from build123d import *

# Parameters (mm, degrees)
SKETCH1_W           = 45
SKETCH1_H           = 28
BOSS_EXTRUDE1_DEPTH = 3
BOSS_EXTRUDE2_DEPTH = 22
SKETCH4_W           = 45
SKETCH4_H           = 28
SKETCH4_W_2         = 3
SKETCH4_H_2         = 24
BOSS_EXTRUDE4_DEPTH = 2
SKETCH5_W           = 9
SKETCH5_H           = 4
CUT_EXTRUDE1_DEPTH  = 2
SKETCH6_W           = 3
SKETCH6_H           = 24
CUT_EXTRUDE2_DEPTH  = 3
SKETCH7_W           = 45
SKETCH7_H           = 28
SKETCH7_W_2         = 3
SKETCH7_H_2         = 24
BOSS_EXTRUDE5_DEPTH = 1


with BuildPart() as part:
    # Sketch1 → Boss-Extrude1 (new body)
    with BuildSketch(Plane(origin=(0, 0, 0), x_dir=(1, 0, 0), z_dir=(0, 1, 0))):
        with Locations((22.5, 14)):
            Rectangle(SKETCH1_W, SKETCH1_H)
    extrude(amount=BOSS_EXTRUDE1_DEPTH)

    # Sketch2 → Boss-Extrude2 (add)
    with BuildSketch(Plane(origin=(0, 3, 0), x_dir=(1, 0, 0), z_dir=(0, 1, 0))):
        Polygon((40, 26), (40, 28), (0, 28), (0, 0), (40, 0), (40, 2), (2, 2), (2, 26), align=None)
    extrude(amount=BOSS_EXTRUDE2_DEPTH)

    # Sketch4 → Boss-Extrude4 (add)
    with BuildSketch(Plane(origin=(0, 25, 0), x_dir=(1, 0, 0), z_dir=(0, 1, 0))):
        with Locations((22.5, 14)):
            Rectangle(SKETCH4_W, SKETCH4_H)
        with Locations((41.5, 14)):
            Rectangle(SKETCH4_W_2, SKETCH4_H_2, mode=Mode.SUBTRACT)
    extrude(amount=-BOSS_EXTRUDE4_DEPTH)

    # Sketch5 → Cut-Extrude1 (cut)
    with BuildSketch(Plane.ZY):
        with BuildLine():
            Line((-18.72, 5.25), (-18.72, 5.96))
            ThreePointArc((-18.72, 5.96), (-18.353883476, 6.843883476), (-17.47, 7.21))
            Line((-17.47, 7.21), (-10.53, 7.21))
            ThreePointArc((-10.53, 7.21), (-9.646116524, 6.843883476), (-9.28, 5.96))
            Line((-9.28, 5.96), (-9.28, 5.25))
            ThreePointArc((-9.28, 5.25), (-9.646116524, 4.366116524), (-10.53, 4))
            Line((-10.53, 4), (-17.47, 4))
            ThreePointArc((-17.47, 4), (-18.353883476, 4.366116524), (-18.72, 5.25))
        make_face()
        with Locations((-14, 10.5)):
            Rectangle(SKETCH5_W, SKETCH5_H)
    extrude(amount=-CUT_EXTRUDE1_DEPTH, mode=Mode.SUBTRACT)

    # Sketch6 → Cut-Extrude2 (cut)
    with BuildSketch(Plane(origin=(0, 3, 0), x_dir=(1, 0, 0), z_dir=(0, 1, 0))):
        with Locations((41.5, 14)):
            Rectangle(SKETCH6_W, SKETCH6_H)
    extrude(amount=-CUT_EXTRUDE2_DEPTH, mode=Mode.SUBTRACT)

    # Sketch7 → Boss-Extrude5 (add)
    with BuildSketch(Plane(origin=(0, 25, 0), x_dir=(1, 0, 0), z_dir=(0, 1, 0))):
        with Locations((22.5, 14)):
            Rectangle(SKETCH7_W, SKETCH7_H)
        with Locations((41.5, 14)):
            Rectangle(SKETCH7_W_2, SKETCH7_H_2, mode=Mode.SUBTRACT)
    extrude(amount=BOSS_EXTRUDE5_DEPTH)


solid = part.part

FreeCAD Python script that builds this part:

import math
import FreeCAD as App
import Part
import Sketcher
Q = App.Units.Quantity

doc = App.newDocument("Part")
body = doc.addObject("PartDesign::Body", "Body")

# Sketch on XZ plane
sketch1 = body.newObject("Sketcher::SketchObject", "Sketch")
sketch1.AttachmentSupport = (doc.getObject("XZ_Plane"), [""])
sketch1.MapMode = "FlatFace"
sketch1.addGeometry(Part.LineSegment(App.Vector(0, -28, 0), App.Vector(0, 0, 0)), False)
sketch1.addGeometry(Part.LineSegment(App.Vector(0, 0, 0), App.Vector(45, 0, 0)), False)
sketch1.addGeometry(Part.LineSegment(App.Vector(45, 0, 0), App.Vector(45, -28, 0)), False)
sketch1.addGeometry(Part.LineSegment(App.Vector(45, -28, 0), App.Vector(0, -28, 0)), False)
sketch1.addConstraint(Sketcher.Constraint("Coincident", 0, 2, 1, 1))
sketch1.addConstraint(Sketcher.Constraint("Coincident", 1, 2, 2, 1))
sketch1.addConstraint(Sketcher.Constraint("Coincident", 2, 2, 3, 1))
sketch1.addConstraint(Sketcher.Constraint("Coincident", 3, 2, 0, 1))
sketch1.addConstraint(Sketcher.Constraint("Vertical", 0))
sketch1.addConstraint(Sketcher.Constraint("Horizontal", 1))
sketch1.addConstraint(Sketcher.Constraint("Vertical", 2))
sketch1.addConstraint(Sketcher.Constraint("Horizontal", 3))
sketch1.addConstraint(Sketcher.Constraint("Coincident", 0, 2, -1, 1))
sketch1.addConstraint(Sketcher.Constraint("DistanceX", 1, 1, 1, 2, Q("45 mm")))
sketch1.addConstraint(Sketcher.Constraint("DistanceY", 0, 1, 0, 2, Q("28 mm")))
pad1 = body.newObject("PartDesign::Pad", "Pad")
pad1.Profile = sketch1
pad1.Length = 3
pad1.Reversed = True

# Sketch on XZ plane
sketch2 = body.newObject("Sketcher::SketchObject", "Sketch001")
sketch2.AttachmentSupport = (doc.getObject("XZ_Plane"), [""])
sketch2.MapMode = "FlatFace"
sketch2.AttachmentOffset = App.Placement(App.Vector(0, 0, -3), App.Rotation())
sketch2.addGeometry(Part.LineSegment(App.Vector(40, -26, 0), App.Vector(40, -28, 0)), False)
sketch2.addGeometry(Part.LineSegment(App.Vector(40, -28, 0), App.Vector(0, -28, 0)), False)
sketch2.addGeometry(Part.LineSegment(App.Vector(0, -28, 0), App.Vector(0, 0, 0)), False)
sketch2.addGeometry(Part.LineSegment(App.Vector(0, 0, 0), App.Vector(40, 0, 0)), False)
sketch2.addGeometry(Part.LineSegment(App.Vector(40, 0, 0), App.Vector(40, -2, 0)), False)
sketch2.addGeometry(Part.LineSegment(App.Vector(40, -2, 0), App.Vector(2, -2, 0)), False)
sketch2.addGeometry(Part.LineSegment(App.Vector(2, -2, 0), App.Vector(2, -26, 0)), False)
sketch2.addGeometry(Part.LineSegment(App.Vector(2, -26, 0), App.Vector(40, -26, 0)), False)
sketch2.addConstraint(Sketcher.Constraint("Coincident", 0, 2, 1, 1))
sketch2.addConstraint(Sketcher.Constraint("Coincident", 1, 2, 2, 1))
sketch2.addConstraint(Sketcher.Constraint("Coincident", 2, 2, 3, 1))
sketch2.addConstraint(Sketcher.Constraint("Coincident", 3, 2, 4, 1))
sketch2.addConstraint(Sketcher.Constraint("Coincident", 4, 2, 5, 1))
sketch2.addConstraint(Sketcher.Constraint("Coincident", 5, 2, 6, 1))
sketch2.addConstraint(Sketcher.Constraint("Coincident", 6, 2, 7, 1))
sketch2.addConstraint(Sketcher.Constraint("Coincident", 7, 2, 0, 1))
sketch2.addConstraint(Sketcher.Constraint("Vertical", 0))
sketch2.addConstraint(Sketcher.Constraint("Horizontal", 1))
sketch2.addConstraint(Sketcher.Constraint("Vertical", 2))
sketch2.addConstraint(Sketcher.Constraint("Horizontal", 3))
sketch2.addConstraint(Sketcher.Constraint("Vertical", 4))
sketch2.addConstraint(Sketcher.Constraint("Horizontal", 5))
sketch2.addConstraint(Sketcher.Constraint("Vertical", 6))
sketch2.addConstraint(Sketcher.Constraint("Horizontal", 7))
sketch2.addConstraint(Sketcher.Constraint("Coincident", 2, 2, -1, 1))
sketch2.addConstraint(Sketcher.Constraint("Vertical", 0, 2, 3, 2))
sketch2.addConstraint(Sketcher.Constraint("Equal", 0, 4))
sketch2.addConstraint(Sketcher.Constraint("DistanceX", 1, 2, 1, 1, Q("40 mm")))
sketch2.addConstraint(Sketcher.Constraint("DistanceX", 5, 2, 5, 1, Q("38 mm")))
sketch2.addConstraint(Sketcher.Constraint("DistanceY", 0, 2, 0, 1, Q("2 mm")))
sketch2.addConstraint(Sketcher.Constraint("DistanceY", 2, 1, 2, 2, Q("28 mm")))
pad2 = body.newObject("PartDesign::Pad", "Pad001")
pad2.Profile = sketch2
pad2.Length = 22
pad2.Reversed = True

# Sketch on XZ plane
sketch3 = body.newObject("Sketcher::SketchObject", "Sketch002")
sketch3.AttachmentSupport = (doc.getObject("XZ_Plane"), [""])
sketch3.MapMode = "FlatFace"
sketch3.AttachmentOffset = App.Placement(App.Vector(0, 0, -25), App.Rotation())
sketch3.addGeometry(Part.LineSegment(App.Vector(0, -28, 0), App.Vector(0, 0, 0)), False)
sketch3.addGeometry(Part.LineSegment(App.Vector(0, 0, 0), App.Vector(45, 0, 0)), False)
sketch3.addGeometry(Part.LineSegment(App.Vector(45, 0, 0), App.Vector(45, -28, 0)), False)
sketch3.addGeometry(Part.LineSegment(App.Vector(45, -28, 0), App.Vector(0, -28, 0)), False)
sketch3.addGeometry(Part.LineSegment(App.Vector(43, -2, 0), App.Vector(40, -2, 0)), False)
sketch3.addGeometry(Part.LineSegment(App.Vector(40, -2, 0), App.Vector(40, -26, 0)), False)
sketch3.addGeometry(Part.LineSegment(App.Vector(40, -26, 0), App.Vector(43, -26, 0)), False)
sketch3.addGeometry(Part.LineSegment(App.Vector(43, -26, 0), App.Vector(43, -2, 0)), False)
sketch3.addConstraint(Sketcher.Constraint("Coincident", 0, 2, 1, 1))
sketch3.addConstraint(Sketcher.Constraint("Coincident", 1, 2, 2, 1))
sketch3.addConstraint(Sketcher.Constraint("Coincident", 2, 2, 3, 1))
sketch3.addConstraint(Sketcher.Constraint("Coincident", 3, 2, 0, 1))
sketch3.addConstraint(Sketcher.Constraint("Coincident", 4, 2, 5, 1))
sketch3.addConstraint(Sketcher.Constraint("Coincident", 5, 2, 6, 1))
sketch3.addConstraint(Sketcher.Constraint("Coincident", 6, 2, 7, 1))
sketch3.addConstraint(Sketcher.Constraint("Coincident", 7, 2, 4, 1))
sketch3.addConstraint(Sketcher.Constraint("Vertical", 0))
sketch3.addConstraint(Sketcher.Constraint("Horizontal", 1))
sketch3.addConstraint(Sketcher.Constraint("Vertical", 2))
sketch3.addConstraint(Sketcher.Constraint("Horizontal", 3))
sketch3.addConstraint(Sketcher.Constraint("Horizontal", 4))
sketch3.addConstraint(Sketcher.Constraint("Vertical", 5))
sketch3.addConstraint(Sketcher.Constraint("Horizontal", 6))
sketch3.addConstraint(Sketcher.Constraint("Vertical", 7))
sketch3.addConstraint(Sketcher.Constraint("Coincident", 0, 2, -1, 1))
sketch3.addConstraint(Sketcher.Constraint("DistanceX", 1, 1, 1, 2, Q("45 mm")))
sketch3.addConstraint(Sketcher.Constraint("DistanceX", 4, 2, 4, 1, Q("3 mm")))
sketch3.addConstraint(Sketcher.Constraint("DistanceY", 0, 1, 0, 2, Q("28 mm")))
sketch3.addConstraint(Sketcher.Constraint("DistanceY", 5, 2, 5, 1, Q("24 mm")))
sketch3.addConstraint(Sketcher.Constraint("DistanceX", -1, 1, 4, 2, Q("40 mm")))
sketch3.addConstraint(Sketcher.Constraint("DistanceY", 4, 2, -1, 1, Q("2 mm")))
pad3 = body.newObject("PartDesign::Pad", "Pad002")
pad3.Profile = sketch3
pad3.Length = 2

# Sketch on YZ plane
sketch4 = body.newObject("Sketcher::SketchObject", "Sketch003")
sketch4.AttachmentSupport = (doc.getObject("YZ_Plane"), [""])
sketch4.MapMode = "FlatFace"
sketch4.addGeometry(Part.LineSegment(App.Vector(6, -18.7, 0), App.Vector(5.2, -18.7, 0)), False)
sketch4.addGeometry(Part.ArcOfCircle(Part.Circle(App.Vector(5.3, -17.5, 0), App.Vector(0, 0, 1), 1.3), math.radians(-180), math.radians(-90)), False)
sketch4.addGeometry(Part.LineSegment(App.Vector(4, -17.5, 0), App.Vector(4, -10.5, 0)), False)
sketch4.addGeometry(Part.ArcOfCircle(Part.Circle(App.Vector(5.3, -10.5, 0), App.Vector(0, 0, 1), 1.3), math.radians(90), math.radians(180)), False)
sketch4.addGeometry(Part.LineSegment(App.Vector(5.2, -9.3, 0), App.Vector(6, -9.3, 0)), False)
sketch4.addGeometry(Part.ArcOfCircle(Part.Circle(App.Vector(6, -10.5, 0), App.Vector(0, 0, 1), 1.3), math.radians(0), math.radians(90)), False)
sketch4.addGeometry(Part.LineSegment(App.Vector(7.2, -10.5, 0), App.Vector(7.2, -17.5, 0)), False)
sketch4.addGeometry(Part.ArcOfCircle(Part.Circle(App.Vector(6, -17.5, 0), App.Vector(0, 0, 1), 1.3), math.radians(-90), math.radians(0)), False)
sketch4.addGeometry(Part.LineSegment(App.Vector(12.5, -18.5, 0), App.Vector(8.5, -18.5, 0)), False)
sketch4.addGeometry(Part.LineSegment(App.Vector(8.5, -18.5, 0), App.Vector(8.5, -9.5, 0)), False)
sketch4.addGeometry(Part.LineSegment(App.Vector(8.5, -9.5, 0), App.Vector(12.5, -9.5, 0)), False)
sketch4.addGeometry(Part.LineSegment(App.Vector(12.5, -9.5, 0), App.Vector(12.5, -18.5, 0)), False)
sketch4.addConstraint(Sketcher.Constraint("Tangent", 0, 2, 1, 2))
sketch4.addConstraint(Sketcher.Constraint("Tangent", 1, 1, 2, 1))
sketch4.addConstraint(Sketcher.Constraint("Tangent", 2, 2, 3, 2))
sketch4.addConstraint(Sketcher.Constraint("Tangent", 3, 1, 4, 1))
sketch4.addConstraint(Sketcher.Constraint("Tangent", 4, 2, 5, 2))
sketch4.addConstraint(Sketcher.Constraint("Tangent", 5, 1, 6, 1))
sketch4.addConstraint(Sketcher.Constraint("Tangent", 6, 2, 7, 2))
sketch4.addConstraint(Sketcher.Constraint("Tangent", 7, 1, 0, 1))
sketch4.addConstraint(Sketcher.Constraint("Coincident", 8, 2, 9, 1))
sketch4.addConstraint(Sketcher.Constraint("Coincident", 9, 2, 10, 1))
sketch4.addConstraint(Sketcher.Constraint("Coincident", 10, 2, 11, 1))
sketch4.addConstraint(Sketcher.Constraint("Coincident", 11, 2, 8, 1))
sketch4.addConstraint(Sketcher.Constraint("Horizontal", 0))
sketch4.addConstraint(Sketcher.Constraint("Vertical", 2))
sketch4.addConstraint(Sketcher.Constraint("Horizontal", 4))
sketch4.addConstraint(Sketcher.Constraint("Vertical", 6))
sketch4.addConstraint(Sketcher.Constraint("Horizontal", 8))
sketch4.addConstraint(Sketcher.Constraint("Vertical", 9))
sketch4.addConstraint(Sketcher.Constraint("Horizontal", 10))
sketch4.addConstraint(Sketcher.Constraint("Vertical", 11))
sketch4.addConstraint(Sketcher.Constraint("Equal", 1, 3))
sketch4.addConstraint(Sketcher.Constraint("Equal", 3, 5))
sketch4.addConstraint(Sketcher.Constraint("Equal", 5, 7))
sketch4.addConstraint(Sketcher.Constraint("DistanceX", 8, 2, 8, 1, Q("4 mm")))
sketch4.addConstraint(Sketcher.Constraint("DistanceY", 9, 1, 9, 2, Q("9 mm")))
sketch4.addConstraint(Sketcher.Constraint("Radius", 1, Q("1.25 mm")))
sketch4.addConstraint(Sketcher.Constraint("DistanceX", -1, 1, 1, 1, Q("4 mm")))
sketch4.addConstraint(Sketcher.Constraint("DistanceX", 0, 2, 0, 1, Q("0.71 mm")))
sketch4.addConstraint(Sketcher.Constraint("DistanceY", 2, 1, 2, 2, Q("6.94 mm")))
sketch4.addConstraint(Sketcher.Constraint("DistanceX", -1, 1, 8, 2, Q("8.5 mm")))
sketch4.addConstraint(Sketcher.Constraint("DistanceY", 8, 2, -1, 1, Q("18.5 mm")))
sketch4.addConstraint(Sketcher.Constraint("DistanceY", 1, 3, -1, 1, Q("17.47 mm")))
pocket1 = body.newObject("PartDesign::Pocket", "Pocket")
pocket1.Profile = sketch4
pocket1.Length = 2
pocket1.Reversed = True

# Sketch on XZ plane
sketch5 = body.newObject("Sketcher::SketchObject", "Sketch004")
sketch5.AttachmentSupport = (doc.getObject("XZ_Plane"), [""])
sketch5.MapMode = "FlatFace"
sketch5.AttachmentOffset = App.Placement(App.Vector(0, 0, -3), App.Rotation())
sketch5.addGeometry(Part.LineSegment(App.Vector(40, -26, 0), App.Vector(40, -2, 0)), False)
sketch5.addGeometry(Part.LineSegment(App.Vector(40, -2, 0), App.Vector(43, -2, 0)), False)
sketch5.addGeometry(Part.LineSegment(App.Vector(43, -2, 0), App.Vector(43, -26, 0)), False)
sketch5.addGeometry(Part.LineSegment(App.Vector(43, -26, 0), App.Vector(40, -26, 0)), False)
sketch5.addConstraint(Sketcher.Constraint("Coincident", 0, 2, 1, 1))
sketch5.addConstraint(Sketcher.Constraint("Coincident", 1, 2, 2, 1))
sketch5.addConstraint(Sketcher.Constraint("Coincident", 2, 2, 3, 1))
sketch5.addConstraint(Sketcher.Constraint("Coincident", 3, 2, 0, 1))
sketch5.addConstraint(Sketcher.Constraint("Vertical", 0))
sketch5.addConstraint(Sketcher.Constraint("Horizontal", 1))
sketch5.addConstraint(Sketcher.Constraint("Vertical", 2))
sketch5.addConstraint(Sketcher.Constraint("Horizontal", 3))
sketch5.addConstraint(Sketcher.Constraint("DistanceX", 1, 1, 1, 2, Q("3 mm")))
sketch5.addConstraint(Sketcher.Constraint("DistanceY", 0, 1, 0, 2, Q("24 mm")))
sketch5.addConstraint(Sketcher.Constraint("DistanceX", -1, 1, 0, 2, Q("40 mm")))
sketch5.addConstraint(Sketcher.Constraint("DistanceY", 0, 2, -1, 1, Q("2 mm")))
pocket2 = body.newObject("PartDesign::Pocket", "Pocket001")
pocket2.Profile = sketch5
pocket2.Length = 3
pocket2.Reversed = True

# Sketch on XZ plane
sketch6 = body.newObject("Sketcher::SketchObject", "Sketch005")
sketch6.AttachmentSupport = (doc.getObject("XZ_Plane"), [""])
sketch6.MapMode = "FlatFace"
sketch6.AttachmentOffset = App.Placement(App.Vector(0, 0, -25), App.Rotation())
sketch6.addGeometry(Part.LineSegment(App.Vector(0, -28, 0), App.Vector(0, 0, 0)), False)
sketch6.addGeometry(Part.LineSegment(App.Vector(0, 0, 0), App.Vector(45, 0, 0)), False)
sketch6.addGeometry(Part.LineSegment(App.Vector(45, 0, 0), App.Vector(45, -28, 0)), False)
sketch6.addGeometry(Part.LineSegment(App.Vector(45, -28, 0), App.Vector(0, -28, 0)), False)
sketch6.addGeometry(Part.LineSegment(App.Vector(43, -2, 0), App.Vector(40, -2, 0)), False)
sketch6.addGeometry(Part.LineSegment(App.Vector(40, -2, 0), App.Vector(40, -26, 0)), False)
sketch6.addGeometry(Part.LineSegment(App.Vector(40, -26, 0), App.Vector(43, -26, 0)), False)
sketch6.addGeometry(Part.LineSegment(App.Vector(43, -26, 0), App.Vector(43, -2, 0)), False)
sketch6.addConstraint(Sketcher.Constraint("Coincident", 0, 2, 1, 1))
sketch6.addConstraint(Sketcher.Constraint("Coincident", 1, 2, 2, 1))
sketch6.addConstraint(Sketcher.Constraint("Coincident", 2, 2, 3, 1))
sketch6.addConstraint(Sketcher.Constraint("Coincident", 3, 2, 0, 1))
sketch6.addConstraint(Sketcher.Constraint("Coincident", 4, 2, 5, 1))
sketch6.addConstraint(Sketcher.Constraint("Coincident", 5, 2, 6, 1))
sketch6.addConstraint(Sketcher.Constraint("Coincident", 6, 2, 7, 1))
sketch6.addConstraint(Sketcher.Constraint("Coincident", 7, 2, 4, 1))
sketch6.addConstraint(Sketcher.Constraint("Vertical", 0))
sketch6.addConstraint(Sketcher.Constraint("Horizontal", 1))
sketch6.addConstraint(Sketcher.Constraint("Vertical", 2))
sketch6.addConstraint(Sketcher.Constraint("Horizontal", 3))
sketch6.addConstraint(Sketcher.Constraint("Horizontal", 4))
sketch6.addConstraint(Sketcher.Constraint("Vertical", 5))
sketch6.addConstraint(Sketcher.Constraint("Horizontal", 6))
sketch6.addConstraint(Sketcher.Constraint("Vertical", 7))
sketch6.addConstraint(Sketcher.Constraint("Coincident", 0, 2, -1, 1))
sketch6.addConstraint(Sketcher.Constraint("DistanceX", 1, 1, 1, 2, Q("45 mm")))
sketch6.addConstraint(Sketcher.Constraint("DistanceX", 4, 2, 4, 1, Q("3 mm")))
sketch6.addConstraint(Sketcher.Constraint("DistanceY", 0, 1, 0, 2, Q("28 mm")))
sketch6.addConstraint(Sketcher.Constraint("DistanceY", 5, 2, 5, 1, Q("24 mm")))
sketch6.addConstraint(Sketcher.Constraint("DistanceX", -1, 1, 4, 2, Q("40 mm")))
sketch6.addConstraint(Sketcher.Constraint("DistanceY", 4, 2, -1, 1, Q("2 mm")))
pad4 = body.newObject("PartDesign::Pad", "Pad003")
pad4.Profile = sketch6
pad4.Length = 1
pad4.Reversed = True

doc.recompute()
